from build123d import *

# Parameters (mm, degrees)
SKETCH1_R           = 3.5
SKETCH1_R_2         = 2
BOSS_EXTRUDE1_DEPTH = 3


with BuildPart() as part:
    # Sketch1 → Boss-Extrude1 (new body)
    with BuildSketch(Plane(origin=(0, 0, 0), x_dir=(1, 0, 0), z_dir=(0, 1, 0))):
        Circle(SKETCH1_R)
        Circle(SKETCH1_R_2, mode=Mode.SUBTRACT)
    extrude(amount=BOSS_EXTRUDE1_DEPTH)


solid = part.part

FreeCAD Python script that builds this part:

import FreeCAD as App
import Part
import Sketcher
from FreeCAD import Vector
Q = App.Units.Quantity

doc = App.newDocument("Part")
params = doc.addObject("Spreadsheet::Sheet", "Params")
for row, (alias, value) in enumerate([
    ("sketch1_diameter", "7 mm"),
    ("sketch1_diameter2", "4 mm"),
    ("pad1_length", "3 mm"),
], start=1):
    params.set(f"A{row}", alias)
    params.set(f"B{row}", "=" + value)
    params.setAlias(f"B{row}", alias)

body = doc.addObject("PartDesign::Body", "Body")

# Sketch on XZ plane
sketch1 = body.newObject("Sketcher::SketchObject", "Sketch")
sketch1.AttachmentSupport = (doc.getObject("XZ_Plane"), [""])
sketch1.MapMode = "FlatFace"
sketch1.addGeometry([
    Part.Circle(Vector(0, 0, 0), Vector(0, 0, 1), 3.5),
    Part.Circle(Vector(0, 0, 0), Vector(0, 0, 1), 2),
], False)
sketch1.addConstraint([
    Sketcher.Constraint("Coincident", 0, 3, -1, 1),
    Sketcher.Constraint("Coincident", 1, 3, -1, 1),
    Sketcher.Constraint("Diameter", 0, Q("7 mm")),
    Sketcher.Constraint("Diameter", 1, Q("4 mm")),
])
sketch1.setExpression("Constraints[2]", "Params.sketch1_diameter")
sketch1.setExpression("Constraints[3]", "Params.sketch1_diameter2")
pad1 = body.newObject("PartDesign::Pad", "Pad")
pad1.Profile = sketch1
pad1.setExpression("Length", "Params.pad1_length")
pad1.Reversed = True

doc.recompute()
